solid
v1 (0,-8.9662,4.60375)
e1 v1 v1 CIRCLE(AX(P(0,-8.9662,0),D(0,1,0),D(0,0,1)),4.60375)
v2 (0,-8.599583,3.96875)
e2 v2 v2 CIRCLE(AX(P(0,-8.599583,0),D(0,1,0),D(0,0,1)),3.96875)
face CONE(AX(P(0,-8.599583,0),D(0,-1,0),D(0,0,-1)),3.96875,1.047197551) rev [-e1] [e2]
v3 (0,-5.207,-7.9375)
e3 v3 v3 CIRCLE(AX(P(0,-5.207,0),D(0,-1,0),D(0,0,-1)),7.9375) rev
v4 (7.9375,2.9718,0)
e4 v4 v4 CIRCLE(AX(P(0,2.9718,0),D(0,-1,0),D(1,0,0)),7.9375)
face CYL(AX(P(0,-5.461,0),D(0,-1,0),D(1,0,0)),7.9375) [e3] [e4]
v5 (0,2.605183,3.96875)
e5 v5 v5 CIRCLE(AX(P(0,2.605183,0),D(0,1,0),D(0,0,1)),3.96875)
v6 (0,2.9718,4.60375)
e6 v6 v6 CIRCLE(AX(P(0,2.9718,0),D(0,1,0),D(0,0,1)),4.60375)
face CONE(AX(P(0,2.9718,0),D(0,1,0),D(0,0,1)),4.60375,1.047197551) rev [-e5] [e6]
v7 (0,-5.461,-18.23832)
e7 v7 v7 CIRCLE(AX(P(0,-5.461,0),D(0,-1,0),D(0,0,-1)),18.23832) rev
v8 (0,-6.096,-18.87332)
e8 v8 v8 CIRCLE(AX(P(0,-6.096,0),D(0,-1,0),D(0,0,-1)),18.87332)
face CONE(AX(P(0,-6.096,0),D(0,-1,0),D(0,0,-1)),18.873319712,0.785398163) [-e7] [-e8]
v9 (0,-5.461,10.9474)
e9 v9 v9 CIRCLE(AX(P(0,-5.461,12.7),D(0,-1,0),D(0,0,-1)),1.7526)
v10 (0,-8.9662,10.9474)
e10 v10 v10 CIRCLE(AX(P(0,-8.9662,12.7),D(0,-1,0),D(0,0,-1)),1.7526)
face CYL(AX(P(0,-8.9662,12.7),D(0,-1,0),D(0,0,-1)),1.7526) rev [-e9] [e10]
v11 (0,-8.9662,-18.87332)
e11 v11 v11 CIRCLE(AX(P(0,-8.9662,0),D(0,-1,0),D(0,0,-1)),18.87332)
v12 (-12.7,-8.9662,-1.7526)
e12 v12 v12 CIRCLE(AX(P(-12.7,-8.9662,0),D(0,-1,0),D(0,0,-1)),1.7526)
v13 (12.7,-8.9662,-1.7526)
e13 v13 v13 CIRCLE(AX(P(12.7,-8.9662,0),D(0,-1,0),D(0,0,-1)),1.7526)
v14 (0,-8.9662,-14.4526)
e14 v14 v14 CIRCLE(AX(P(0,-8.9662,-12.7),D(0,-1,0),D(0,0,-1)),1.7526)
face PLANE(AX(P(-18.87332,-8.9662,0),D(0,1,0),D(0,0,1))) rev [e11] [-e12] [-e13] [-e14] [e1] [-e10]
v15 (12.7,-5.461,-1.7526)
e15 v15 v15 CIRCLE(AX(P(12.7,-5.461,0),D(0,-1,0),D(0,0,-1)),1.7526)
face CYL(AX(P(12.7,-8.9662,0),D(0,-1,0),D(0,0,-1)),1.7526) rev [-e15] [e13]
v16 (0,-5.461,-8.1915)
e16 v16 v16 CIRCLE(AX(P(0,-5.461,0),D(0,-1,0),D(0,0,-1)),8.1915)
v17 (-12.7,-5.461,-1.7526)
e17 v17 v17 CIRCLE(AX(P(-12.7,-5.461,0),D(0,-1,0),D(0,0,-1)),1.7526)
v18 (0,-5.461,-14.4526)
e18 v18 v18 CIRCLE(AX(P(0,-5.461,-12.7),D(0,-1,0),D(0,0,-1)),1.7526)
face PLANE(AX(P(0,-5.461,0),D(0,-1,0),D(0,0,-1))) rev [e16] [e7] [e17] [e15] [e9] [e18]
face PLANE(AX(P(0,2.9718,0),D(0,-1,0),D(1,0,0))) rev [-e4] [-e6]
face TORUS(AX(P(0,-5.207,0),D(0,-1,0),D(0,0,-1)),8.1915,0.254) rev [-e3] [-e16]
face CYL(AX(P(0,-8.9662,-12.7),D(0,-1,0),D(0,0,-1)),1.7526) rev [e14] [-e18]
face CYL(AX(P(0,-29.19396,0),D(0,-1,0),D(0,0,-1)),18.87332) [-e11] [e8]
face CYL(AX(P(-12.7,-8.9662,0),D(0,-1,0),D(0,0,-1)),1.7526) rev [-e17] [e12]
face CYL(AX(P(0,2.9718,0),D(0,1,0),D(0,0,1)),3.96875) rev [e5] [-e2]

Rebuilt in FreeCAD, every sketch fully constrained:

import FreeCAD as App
import Part
import Sketcher
Q = App.Units.Quantity


def edges_at(feature, points):
    """Names of the edges that pass closest to the given points."""
    edges = feature.Shape.Edges
    near = lambda p: min(range(len(edges)), key=lambda i: edges[i].distToShape(Part.Vertex(*p))[0])
    return sorted({f"Edge{near(p) + 1}" for p in points})


def add_polygon(sketch, points):
    """Adds a closed chain of lines whose ends are joined by coincident constraints."""
    first, n = sketch.GeometryCount, len(points)
    for a, b in zip(points, points[1:] + points[:1]):
        sketch.addGeometry(Part.LineSegment(App.Vector(*a, 0), App.Vector(*b, 0)), False)
    for i in range(n):
        sketch.addConstraint(Sketcher.Constraint("Coincident", first + i, 2, first + (i + 1) % n, 1))

doc = App.newDocument("Part")
body = doc.addObject("PartDesign::Body", "Body")

# Sketch on XY plane
sketch1 = body.newObject("Sketcher::SketchObject", "Sketch")
sketch1.AttachmentSupport = (doc.getObject("XY_Plane"), [""])
sketch1.MapMode = "FlatFace"
add_polygon(sketch1, [(-8, -5), (0, -5), (0, 3), (-8, 3)])  # lines 0-3
sketch1.addConstraint(Sketcher.Constraint("Horizontal", 0))
sketch1.addConstraint(Sketcher.Constraint("Vertical", 1))
sketch1.addConstraint(Sketcher.Constraint("Horizontal", 2))
sketch1.addConstraint(Sketcher.Constraint("Vertical", 3))
sketch1.addConstraint(Sketcher.Constraint("PointOnObject", 0, 2, -2))
sketch1.addConstraint(Sketcher.Constraint("DistanceX", 0, 1, 0, 2, Q("0.3125 in")))
sketch1.addConstraint(Sketcher.Constraint("DistanceY", 1, 1, 1, 2, Q("0.332 in")))
sketch1.addConstraint(Sketcher.Constraint("DistanceY", 0, 2, -1, 1, Q("0.215 in")))
revolution = body.newObject("PartDesign::Revolution", "Revolution")
revolution.Profile = sketch1
revolution.ReferenceAxis = (sketch1, ["V_Axis"])
revolution.Angle = 360

# Sketch on XZ plane
sketch2 = body.newObject("Sketcher::SketchObject", "Sketch001")
sketch2.AttachmentSupport = (doc.getObject("XZ_Plane"), [""])
sketch2.MapMode = "FlatFace"
sketch2.AttachmentOffset = App.Placement(App.Vector(0, 0, -0.117 * 25.4), App.Rotation())
sketch2.addGeometry(Part.Circle(App.Vector(0, 0, 0), App.Vector(0, 0, 1), 4), False)
sketch2.addConstraint(Sketcher.Constraint("Coincident", 0, 3, -1, 1))
sketch2.addConstraint(Sketcher.Constraint("Diameter", 0, Q("0.3125 in")))
doc.recompute()
hole = body.newObject("PartDesign::Hole", "Hole")
hole.Profile = sketch2
hole.ThreadType = "None"
hole.Diameter = Q("0.3125 in")
hole.DepthType = "Dimension"
hole.Depth = Q("0.332 in")
hole.DrillPoint = "Flat"
hole.HoleCutType = "Countersink"
hole.HoleCutDiameter = Q("0.3625 in")
hole.HoleCutCountersinkAngle = 120
hole.Reversed = True

# Sketch on XY plane
sketch3 = body.newObject("Sketcher::SketchObject", "Sketch002")
sketch3.AttachmentSupport = (doc.getObject("XY_Plane"), [""])
sketch3.MapMode = "FlatFace"
add_polygon(sketch3, [(-18.9, -5.5), (-18.9, -9), (0, -9), (0, -5.5)])  # lines 0-3
sketch3.addConstraint(Sketcher.Constraint("Vertical", 0))
sketch3.addConstraint(Sketcher.Constraint("Horizontal", 1))
sketch3.addConstraint(Sketcher.Constraint("Vertical", 2))
sketch3.addConstraint(Sketcher.Constraint("Horizontal", 3))
sketch3.addConstraint(Sketcher.Constraint("PointOnObject", 1, 2, -2))
sketch3.addConstraint(Sketcher.Constraint("DistanceY", 0, 2, 0, 1, Q("0.138 in")))
sketch3.addConstraint(Sketcher.Constraint("DistanceY", 0, 2, -1, 1, Q("0.353 in")))
sketch3.addConstraint(Sketcher.Constraint("DistanceX", 1, 1, 1, 2, 18.87332))
revolution2 = body.newObject("PartDesign::Revolution", "Revolution001")
revolution2.Profile = sketch3
revolution2.ReferenceAxis = (sketch3, ["V_Axis"])
revolution2.Angle = 360

# Sketch on YZ plane
sketch4 = body.newObject("Sketcher::SketchObject", "Sketch003")
sketch4.AttachmentSupport = (doc.getObject("YZ_Plane"), [""])
sketch4.MapMode = "FlatFace"
add_polygon(sketch4, [(-9, 0), (-5.5, 0), (-5.5, 4), (-8.6, 4), (-9, 4.6)])  # lines 0-4
sketch4.addConstraint(Sketcher.Constraint("Horizontal", 0))
sketch4.addConstraint(Sketcher.Constraint("Vertical", 1))
sketch4.addConstraint(Sketcher.Constraint("Horizontal", 2))
sketch4.addConstraint(Sketcher.Constraint("Vertical", 4))
sketch4.addConstraint(Sketcher.Constraint("PointOnObject", 0, 2, -1))
sketch4.addConstraint(Sketcher.Constraint("Angle", 3, Q("120 deg")))
sketch4.addConstraint(Sketcher.Constraint("DistanceX", 0, 1, 0, 2, Q("0.138 in")))
sketch4.addConstraint(Sketcher.Constraint("DistanceY", 1, 1, 1, 2, Q("0.15625 in")))
sketch4.addConstraint(Sketcher.Constraint("DistanceX", 0, 2, -1, 1, Q("0.215 in")))
sketch4.addConstraint(Sketcher.Constraint("DistanceY", 2, 2, 3, 2, Q("0.025 in")))
groove = body.newObject("PartDesign::Groove", "Groove")
groove.Profile = sketch4
groove.ReferenceAxis = (sketch4, ["H_Axis"])
groove.Angle = 360
doc.recompute()

fillet = body.newObject("PartDesign::Fillet", "Fillet")
fillet.Base = (groove, edges_at(groove, [(-7.938, -5.461, 0)]))
fillet.Radius = Q("0.01 in")

# Sketch on XZ plane
sketch5 = body.newObject("Sketcher::SketchObject", "Sketch004")
sketch5.AttachmentSupport = (doc.getObject("XZ_Plane"), [""])
sketch5.MapMode = "FlatFace"
sketch5.AttachmentOffset = App.Placement(App.Vector(0, 0, 0.353 * 25.4), App.Rotation())
sketch5.addGeometry(Part.Circle(App.Vector(0, 12.7, 0), App.Vector(0, 0, 1), 1.8), False)
sketch5.addConstraint(Sketcher.Constraint("PointOnObject", 0, 3, -2))
sketch5.addConstraint(Sketcher.Constraint("Diameter", 0, Q("0.138 in")))
sketch5.addConstraint(Sketcher.Constraint("DistanceY", -1, 1, 0, 3, Q("0.5 in")))
doc.recompute()
hole2 = body.newObject("PartDesign::Hole", "Hole001")
hole2.Profile = sketch5
hole2.ThreadType = "None"
hole2.Diameter = Q("0.138 in")
hole2.DepthType = "Dimension"
hole2.Depth = 3.5062
hole2.DrillPoint = "Flat"
doc.recompute()

polarpattern = body.newObject("PartDesign::PolarPattern", "PolarPattern")
polarpattern.Originals = [hole2]
polarpattern.Axis = (doc.getObject("Y_Axis"), [""])
polarpattern.Angle = 360
polarpattern.Occurrences = 4
body.Tip = polarpattern
doc.recompute()

chamfer = body.newObject("PartDesign::Chamfer", "Chamfer")
chamfer.Base = (polarpattern, edges_at(polarpattern, [(-18.873, -5.461, 0)]))
chamfer.Size = Q("0.025 in")

doc.recompute()
